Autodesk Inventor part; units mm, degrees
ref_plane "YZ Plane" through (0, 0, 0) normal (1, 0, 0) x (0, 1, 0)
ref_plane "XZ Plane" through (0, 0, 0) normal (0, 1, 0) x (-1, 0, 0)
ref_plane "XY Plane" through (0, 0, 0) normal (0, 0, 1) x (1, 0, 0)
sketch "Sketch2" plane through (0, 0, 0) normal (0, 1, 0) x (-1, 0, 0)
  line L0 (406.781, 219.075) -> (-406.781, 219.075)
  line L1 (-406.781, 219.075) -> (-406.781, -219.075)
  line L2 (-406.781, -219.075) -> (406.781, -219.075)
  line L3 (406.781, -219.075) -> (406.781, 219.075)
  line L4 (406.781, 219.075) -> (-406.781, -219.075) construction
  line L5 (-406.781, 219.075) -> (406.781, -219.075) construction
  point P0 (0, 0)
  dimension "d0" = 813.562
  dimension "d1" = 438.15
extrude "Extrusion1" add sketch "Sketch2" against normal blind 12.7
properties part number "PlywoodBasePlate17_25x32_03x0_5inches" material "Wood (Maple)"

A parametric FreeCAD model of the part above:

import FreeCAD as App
import Part
import Sketcher

V = App.Vector
Q = App.Units.Quantity

doc = App.newDocument("Part")
body = doc.addObject("PartDesign::Body", "Body")

sketch1 = body.newObject("Sketcher::SketchObject", "Sketch")
sketch1.AttachmentSupport = (doc.getObject("XZ_Plane"), [""])
sketch1.MapMode = "FlatFace"
sketch1.addGeometry([
    Part.LineSegment(V(-406.781, -219.075, 0), V(-406.781, 219.075, 0)),
    Part.LineSegment(V(-406.781, 219.075, 0), V(406.781, 219.075, 0)),
    Part.LineSegment(V(406.781, 219.075, 0), V(406.781, -219.075, 0)),
    Part.LineSegment(V(406.781, -219.075, 0), V(-406.781, -219.075, 0)),
], False)
sketch1.addConstraint([
    Sketcher.Constraint("Coincident", 0, 2, 1, 1),
    Sketcher.Constraint("Coincident", 1, 2, 2, 1),
    Sketcher.Constraint("Coincident", 2, 2, 3, 1),
    Sketcher.Constraint("Coincident", 3, 2, 0, 1),
    Sketcher.Constraint("Vertical", 0),
    Sketcher.Constraint("Horizontal", 1),
    Sketcher.Constraint("Vertical", 2),
    Sketcher.Constraint("Horizontal", 3),
    Sketcher.Constraint("Symmetric", 0, 2, 2, 2, -1, 1),
    Sketcher.Constraint("DistanceX", 1, 1, 1, 2, Q("32.03 in")),
    Sketcher.Constraint("DistanceY", 0, 1, 0, 2, Q("17.25 in")),
])
pad1 = body.newObject("PartDesign::Pad", "Pad")
pad1.Profile = sketch1
pad1.Length = Q("0.5 in")

doc.recompute()
